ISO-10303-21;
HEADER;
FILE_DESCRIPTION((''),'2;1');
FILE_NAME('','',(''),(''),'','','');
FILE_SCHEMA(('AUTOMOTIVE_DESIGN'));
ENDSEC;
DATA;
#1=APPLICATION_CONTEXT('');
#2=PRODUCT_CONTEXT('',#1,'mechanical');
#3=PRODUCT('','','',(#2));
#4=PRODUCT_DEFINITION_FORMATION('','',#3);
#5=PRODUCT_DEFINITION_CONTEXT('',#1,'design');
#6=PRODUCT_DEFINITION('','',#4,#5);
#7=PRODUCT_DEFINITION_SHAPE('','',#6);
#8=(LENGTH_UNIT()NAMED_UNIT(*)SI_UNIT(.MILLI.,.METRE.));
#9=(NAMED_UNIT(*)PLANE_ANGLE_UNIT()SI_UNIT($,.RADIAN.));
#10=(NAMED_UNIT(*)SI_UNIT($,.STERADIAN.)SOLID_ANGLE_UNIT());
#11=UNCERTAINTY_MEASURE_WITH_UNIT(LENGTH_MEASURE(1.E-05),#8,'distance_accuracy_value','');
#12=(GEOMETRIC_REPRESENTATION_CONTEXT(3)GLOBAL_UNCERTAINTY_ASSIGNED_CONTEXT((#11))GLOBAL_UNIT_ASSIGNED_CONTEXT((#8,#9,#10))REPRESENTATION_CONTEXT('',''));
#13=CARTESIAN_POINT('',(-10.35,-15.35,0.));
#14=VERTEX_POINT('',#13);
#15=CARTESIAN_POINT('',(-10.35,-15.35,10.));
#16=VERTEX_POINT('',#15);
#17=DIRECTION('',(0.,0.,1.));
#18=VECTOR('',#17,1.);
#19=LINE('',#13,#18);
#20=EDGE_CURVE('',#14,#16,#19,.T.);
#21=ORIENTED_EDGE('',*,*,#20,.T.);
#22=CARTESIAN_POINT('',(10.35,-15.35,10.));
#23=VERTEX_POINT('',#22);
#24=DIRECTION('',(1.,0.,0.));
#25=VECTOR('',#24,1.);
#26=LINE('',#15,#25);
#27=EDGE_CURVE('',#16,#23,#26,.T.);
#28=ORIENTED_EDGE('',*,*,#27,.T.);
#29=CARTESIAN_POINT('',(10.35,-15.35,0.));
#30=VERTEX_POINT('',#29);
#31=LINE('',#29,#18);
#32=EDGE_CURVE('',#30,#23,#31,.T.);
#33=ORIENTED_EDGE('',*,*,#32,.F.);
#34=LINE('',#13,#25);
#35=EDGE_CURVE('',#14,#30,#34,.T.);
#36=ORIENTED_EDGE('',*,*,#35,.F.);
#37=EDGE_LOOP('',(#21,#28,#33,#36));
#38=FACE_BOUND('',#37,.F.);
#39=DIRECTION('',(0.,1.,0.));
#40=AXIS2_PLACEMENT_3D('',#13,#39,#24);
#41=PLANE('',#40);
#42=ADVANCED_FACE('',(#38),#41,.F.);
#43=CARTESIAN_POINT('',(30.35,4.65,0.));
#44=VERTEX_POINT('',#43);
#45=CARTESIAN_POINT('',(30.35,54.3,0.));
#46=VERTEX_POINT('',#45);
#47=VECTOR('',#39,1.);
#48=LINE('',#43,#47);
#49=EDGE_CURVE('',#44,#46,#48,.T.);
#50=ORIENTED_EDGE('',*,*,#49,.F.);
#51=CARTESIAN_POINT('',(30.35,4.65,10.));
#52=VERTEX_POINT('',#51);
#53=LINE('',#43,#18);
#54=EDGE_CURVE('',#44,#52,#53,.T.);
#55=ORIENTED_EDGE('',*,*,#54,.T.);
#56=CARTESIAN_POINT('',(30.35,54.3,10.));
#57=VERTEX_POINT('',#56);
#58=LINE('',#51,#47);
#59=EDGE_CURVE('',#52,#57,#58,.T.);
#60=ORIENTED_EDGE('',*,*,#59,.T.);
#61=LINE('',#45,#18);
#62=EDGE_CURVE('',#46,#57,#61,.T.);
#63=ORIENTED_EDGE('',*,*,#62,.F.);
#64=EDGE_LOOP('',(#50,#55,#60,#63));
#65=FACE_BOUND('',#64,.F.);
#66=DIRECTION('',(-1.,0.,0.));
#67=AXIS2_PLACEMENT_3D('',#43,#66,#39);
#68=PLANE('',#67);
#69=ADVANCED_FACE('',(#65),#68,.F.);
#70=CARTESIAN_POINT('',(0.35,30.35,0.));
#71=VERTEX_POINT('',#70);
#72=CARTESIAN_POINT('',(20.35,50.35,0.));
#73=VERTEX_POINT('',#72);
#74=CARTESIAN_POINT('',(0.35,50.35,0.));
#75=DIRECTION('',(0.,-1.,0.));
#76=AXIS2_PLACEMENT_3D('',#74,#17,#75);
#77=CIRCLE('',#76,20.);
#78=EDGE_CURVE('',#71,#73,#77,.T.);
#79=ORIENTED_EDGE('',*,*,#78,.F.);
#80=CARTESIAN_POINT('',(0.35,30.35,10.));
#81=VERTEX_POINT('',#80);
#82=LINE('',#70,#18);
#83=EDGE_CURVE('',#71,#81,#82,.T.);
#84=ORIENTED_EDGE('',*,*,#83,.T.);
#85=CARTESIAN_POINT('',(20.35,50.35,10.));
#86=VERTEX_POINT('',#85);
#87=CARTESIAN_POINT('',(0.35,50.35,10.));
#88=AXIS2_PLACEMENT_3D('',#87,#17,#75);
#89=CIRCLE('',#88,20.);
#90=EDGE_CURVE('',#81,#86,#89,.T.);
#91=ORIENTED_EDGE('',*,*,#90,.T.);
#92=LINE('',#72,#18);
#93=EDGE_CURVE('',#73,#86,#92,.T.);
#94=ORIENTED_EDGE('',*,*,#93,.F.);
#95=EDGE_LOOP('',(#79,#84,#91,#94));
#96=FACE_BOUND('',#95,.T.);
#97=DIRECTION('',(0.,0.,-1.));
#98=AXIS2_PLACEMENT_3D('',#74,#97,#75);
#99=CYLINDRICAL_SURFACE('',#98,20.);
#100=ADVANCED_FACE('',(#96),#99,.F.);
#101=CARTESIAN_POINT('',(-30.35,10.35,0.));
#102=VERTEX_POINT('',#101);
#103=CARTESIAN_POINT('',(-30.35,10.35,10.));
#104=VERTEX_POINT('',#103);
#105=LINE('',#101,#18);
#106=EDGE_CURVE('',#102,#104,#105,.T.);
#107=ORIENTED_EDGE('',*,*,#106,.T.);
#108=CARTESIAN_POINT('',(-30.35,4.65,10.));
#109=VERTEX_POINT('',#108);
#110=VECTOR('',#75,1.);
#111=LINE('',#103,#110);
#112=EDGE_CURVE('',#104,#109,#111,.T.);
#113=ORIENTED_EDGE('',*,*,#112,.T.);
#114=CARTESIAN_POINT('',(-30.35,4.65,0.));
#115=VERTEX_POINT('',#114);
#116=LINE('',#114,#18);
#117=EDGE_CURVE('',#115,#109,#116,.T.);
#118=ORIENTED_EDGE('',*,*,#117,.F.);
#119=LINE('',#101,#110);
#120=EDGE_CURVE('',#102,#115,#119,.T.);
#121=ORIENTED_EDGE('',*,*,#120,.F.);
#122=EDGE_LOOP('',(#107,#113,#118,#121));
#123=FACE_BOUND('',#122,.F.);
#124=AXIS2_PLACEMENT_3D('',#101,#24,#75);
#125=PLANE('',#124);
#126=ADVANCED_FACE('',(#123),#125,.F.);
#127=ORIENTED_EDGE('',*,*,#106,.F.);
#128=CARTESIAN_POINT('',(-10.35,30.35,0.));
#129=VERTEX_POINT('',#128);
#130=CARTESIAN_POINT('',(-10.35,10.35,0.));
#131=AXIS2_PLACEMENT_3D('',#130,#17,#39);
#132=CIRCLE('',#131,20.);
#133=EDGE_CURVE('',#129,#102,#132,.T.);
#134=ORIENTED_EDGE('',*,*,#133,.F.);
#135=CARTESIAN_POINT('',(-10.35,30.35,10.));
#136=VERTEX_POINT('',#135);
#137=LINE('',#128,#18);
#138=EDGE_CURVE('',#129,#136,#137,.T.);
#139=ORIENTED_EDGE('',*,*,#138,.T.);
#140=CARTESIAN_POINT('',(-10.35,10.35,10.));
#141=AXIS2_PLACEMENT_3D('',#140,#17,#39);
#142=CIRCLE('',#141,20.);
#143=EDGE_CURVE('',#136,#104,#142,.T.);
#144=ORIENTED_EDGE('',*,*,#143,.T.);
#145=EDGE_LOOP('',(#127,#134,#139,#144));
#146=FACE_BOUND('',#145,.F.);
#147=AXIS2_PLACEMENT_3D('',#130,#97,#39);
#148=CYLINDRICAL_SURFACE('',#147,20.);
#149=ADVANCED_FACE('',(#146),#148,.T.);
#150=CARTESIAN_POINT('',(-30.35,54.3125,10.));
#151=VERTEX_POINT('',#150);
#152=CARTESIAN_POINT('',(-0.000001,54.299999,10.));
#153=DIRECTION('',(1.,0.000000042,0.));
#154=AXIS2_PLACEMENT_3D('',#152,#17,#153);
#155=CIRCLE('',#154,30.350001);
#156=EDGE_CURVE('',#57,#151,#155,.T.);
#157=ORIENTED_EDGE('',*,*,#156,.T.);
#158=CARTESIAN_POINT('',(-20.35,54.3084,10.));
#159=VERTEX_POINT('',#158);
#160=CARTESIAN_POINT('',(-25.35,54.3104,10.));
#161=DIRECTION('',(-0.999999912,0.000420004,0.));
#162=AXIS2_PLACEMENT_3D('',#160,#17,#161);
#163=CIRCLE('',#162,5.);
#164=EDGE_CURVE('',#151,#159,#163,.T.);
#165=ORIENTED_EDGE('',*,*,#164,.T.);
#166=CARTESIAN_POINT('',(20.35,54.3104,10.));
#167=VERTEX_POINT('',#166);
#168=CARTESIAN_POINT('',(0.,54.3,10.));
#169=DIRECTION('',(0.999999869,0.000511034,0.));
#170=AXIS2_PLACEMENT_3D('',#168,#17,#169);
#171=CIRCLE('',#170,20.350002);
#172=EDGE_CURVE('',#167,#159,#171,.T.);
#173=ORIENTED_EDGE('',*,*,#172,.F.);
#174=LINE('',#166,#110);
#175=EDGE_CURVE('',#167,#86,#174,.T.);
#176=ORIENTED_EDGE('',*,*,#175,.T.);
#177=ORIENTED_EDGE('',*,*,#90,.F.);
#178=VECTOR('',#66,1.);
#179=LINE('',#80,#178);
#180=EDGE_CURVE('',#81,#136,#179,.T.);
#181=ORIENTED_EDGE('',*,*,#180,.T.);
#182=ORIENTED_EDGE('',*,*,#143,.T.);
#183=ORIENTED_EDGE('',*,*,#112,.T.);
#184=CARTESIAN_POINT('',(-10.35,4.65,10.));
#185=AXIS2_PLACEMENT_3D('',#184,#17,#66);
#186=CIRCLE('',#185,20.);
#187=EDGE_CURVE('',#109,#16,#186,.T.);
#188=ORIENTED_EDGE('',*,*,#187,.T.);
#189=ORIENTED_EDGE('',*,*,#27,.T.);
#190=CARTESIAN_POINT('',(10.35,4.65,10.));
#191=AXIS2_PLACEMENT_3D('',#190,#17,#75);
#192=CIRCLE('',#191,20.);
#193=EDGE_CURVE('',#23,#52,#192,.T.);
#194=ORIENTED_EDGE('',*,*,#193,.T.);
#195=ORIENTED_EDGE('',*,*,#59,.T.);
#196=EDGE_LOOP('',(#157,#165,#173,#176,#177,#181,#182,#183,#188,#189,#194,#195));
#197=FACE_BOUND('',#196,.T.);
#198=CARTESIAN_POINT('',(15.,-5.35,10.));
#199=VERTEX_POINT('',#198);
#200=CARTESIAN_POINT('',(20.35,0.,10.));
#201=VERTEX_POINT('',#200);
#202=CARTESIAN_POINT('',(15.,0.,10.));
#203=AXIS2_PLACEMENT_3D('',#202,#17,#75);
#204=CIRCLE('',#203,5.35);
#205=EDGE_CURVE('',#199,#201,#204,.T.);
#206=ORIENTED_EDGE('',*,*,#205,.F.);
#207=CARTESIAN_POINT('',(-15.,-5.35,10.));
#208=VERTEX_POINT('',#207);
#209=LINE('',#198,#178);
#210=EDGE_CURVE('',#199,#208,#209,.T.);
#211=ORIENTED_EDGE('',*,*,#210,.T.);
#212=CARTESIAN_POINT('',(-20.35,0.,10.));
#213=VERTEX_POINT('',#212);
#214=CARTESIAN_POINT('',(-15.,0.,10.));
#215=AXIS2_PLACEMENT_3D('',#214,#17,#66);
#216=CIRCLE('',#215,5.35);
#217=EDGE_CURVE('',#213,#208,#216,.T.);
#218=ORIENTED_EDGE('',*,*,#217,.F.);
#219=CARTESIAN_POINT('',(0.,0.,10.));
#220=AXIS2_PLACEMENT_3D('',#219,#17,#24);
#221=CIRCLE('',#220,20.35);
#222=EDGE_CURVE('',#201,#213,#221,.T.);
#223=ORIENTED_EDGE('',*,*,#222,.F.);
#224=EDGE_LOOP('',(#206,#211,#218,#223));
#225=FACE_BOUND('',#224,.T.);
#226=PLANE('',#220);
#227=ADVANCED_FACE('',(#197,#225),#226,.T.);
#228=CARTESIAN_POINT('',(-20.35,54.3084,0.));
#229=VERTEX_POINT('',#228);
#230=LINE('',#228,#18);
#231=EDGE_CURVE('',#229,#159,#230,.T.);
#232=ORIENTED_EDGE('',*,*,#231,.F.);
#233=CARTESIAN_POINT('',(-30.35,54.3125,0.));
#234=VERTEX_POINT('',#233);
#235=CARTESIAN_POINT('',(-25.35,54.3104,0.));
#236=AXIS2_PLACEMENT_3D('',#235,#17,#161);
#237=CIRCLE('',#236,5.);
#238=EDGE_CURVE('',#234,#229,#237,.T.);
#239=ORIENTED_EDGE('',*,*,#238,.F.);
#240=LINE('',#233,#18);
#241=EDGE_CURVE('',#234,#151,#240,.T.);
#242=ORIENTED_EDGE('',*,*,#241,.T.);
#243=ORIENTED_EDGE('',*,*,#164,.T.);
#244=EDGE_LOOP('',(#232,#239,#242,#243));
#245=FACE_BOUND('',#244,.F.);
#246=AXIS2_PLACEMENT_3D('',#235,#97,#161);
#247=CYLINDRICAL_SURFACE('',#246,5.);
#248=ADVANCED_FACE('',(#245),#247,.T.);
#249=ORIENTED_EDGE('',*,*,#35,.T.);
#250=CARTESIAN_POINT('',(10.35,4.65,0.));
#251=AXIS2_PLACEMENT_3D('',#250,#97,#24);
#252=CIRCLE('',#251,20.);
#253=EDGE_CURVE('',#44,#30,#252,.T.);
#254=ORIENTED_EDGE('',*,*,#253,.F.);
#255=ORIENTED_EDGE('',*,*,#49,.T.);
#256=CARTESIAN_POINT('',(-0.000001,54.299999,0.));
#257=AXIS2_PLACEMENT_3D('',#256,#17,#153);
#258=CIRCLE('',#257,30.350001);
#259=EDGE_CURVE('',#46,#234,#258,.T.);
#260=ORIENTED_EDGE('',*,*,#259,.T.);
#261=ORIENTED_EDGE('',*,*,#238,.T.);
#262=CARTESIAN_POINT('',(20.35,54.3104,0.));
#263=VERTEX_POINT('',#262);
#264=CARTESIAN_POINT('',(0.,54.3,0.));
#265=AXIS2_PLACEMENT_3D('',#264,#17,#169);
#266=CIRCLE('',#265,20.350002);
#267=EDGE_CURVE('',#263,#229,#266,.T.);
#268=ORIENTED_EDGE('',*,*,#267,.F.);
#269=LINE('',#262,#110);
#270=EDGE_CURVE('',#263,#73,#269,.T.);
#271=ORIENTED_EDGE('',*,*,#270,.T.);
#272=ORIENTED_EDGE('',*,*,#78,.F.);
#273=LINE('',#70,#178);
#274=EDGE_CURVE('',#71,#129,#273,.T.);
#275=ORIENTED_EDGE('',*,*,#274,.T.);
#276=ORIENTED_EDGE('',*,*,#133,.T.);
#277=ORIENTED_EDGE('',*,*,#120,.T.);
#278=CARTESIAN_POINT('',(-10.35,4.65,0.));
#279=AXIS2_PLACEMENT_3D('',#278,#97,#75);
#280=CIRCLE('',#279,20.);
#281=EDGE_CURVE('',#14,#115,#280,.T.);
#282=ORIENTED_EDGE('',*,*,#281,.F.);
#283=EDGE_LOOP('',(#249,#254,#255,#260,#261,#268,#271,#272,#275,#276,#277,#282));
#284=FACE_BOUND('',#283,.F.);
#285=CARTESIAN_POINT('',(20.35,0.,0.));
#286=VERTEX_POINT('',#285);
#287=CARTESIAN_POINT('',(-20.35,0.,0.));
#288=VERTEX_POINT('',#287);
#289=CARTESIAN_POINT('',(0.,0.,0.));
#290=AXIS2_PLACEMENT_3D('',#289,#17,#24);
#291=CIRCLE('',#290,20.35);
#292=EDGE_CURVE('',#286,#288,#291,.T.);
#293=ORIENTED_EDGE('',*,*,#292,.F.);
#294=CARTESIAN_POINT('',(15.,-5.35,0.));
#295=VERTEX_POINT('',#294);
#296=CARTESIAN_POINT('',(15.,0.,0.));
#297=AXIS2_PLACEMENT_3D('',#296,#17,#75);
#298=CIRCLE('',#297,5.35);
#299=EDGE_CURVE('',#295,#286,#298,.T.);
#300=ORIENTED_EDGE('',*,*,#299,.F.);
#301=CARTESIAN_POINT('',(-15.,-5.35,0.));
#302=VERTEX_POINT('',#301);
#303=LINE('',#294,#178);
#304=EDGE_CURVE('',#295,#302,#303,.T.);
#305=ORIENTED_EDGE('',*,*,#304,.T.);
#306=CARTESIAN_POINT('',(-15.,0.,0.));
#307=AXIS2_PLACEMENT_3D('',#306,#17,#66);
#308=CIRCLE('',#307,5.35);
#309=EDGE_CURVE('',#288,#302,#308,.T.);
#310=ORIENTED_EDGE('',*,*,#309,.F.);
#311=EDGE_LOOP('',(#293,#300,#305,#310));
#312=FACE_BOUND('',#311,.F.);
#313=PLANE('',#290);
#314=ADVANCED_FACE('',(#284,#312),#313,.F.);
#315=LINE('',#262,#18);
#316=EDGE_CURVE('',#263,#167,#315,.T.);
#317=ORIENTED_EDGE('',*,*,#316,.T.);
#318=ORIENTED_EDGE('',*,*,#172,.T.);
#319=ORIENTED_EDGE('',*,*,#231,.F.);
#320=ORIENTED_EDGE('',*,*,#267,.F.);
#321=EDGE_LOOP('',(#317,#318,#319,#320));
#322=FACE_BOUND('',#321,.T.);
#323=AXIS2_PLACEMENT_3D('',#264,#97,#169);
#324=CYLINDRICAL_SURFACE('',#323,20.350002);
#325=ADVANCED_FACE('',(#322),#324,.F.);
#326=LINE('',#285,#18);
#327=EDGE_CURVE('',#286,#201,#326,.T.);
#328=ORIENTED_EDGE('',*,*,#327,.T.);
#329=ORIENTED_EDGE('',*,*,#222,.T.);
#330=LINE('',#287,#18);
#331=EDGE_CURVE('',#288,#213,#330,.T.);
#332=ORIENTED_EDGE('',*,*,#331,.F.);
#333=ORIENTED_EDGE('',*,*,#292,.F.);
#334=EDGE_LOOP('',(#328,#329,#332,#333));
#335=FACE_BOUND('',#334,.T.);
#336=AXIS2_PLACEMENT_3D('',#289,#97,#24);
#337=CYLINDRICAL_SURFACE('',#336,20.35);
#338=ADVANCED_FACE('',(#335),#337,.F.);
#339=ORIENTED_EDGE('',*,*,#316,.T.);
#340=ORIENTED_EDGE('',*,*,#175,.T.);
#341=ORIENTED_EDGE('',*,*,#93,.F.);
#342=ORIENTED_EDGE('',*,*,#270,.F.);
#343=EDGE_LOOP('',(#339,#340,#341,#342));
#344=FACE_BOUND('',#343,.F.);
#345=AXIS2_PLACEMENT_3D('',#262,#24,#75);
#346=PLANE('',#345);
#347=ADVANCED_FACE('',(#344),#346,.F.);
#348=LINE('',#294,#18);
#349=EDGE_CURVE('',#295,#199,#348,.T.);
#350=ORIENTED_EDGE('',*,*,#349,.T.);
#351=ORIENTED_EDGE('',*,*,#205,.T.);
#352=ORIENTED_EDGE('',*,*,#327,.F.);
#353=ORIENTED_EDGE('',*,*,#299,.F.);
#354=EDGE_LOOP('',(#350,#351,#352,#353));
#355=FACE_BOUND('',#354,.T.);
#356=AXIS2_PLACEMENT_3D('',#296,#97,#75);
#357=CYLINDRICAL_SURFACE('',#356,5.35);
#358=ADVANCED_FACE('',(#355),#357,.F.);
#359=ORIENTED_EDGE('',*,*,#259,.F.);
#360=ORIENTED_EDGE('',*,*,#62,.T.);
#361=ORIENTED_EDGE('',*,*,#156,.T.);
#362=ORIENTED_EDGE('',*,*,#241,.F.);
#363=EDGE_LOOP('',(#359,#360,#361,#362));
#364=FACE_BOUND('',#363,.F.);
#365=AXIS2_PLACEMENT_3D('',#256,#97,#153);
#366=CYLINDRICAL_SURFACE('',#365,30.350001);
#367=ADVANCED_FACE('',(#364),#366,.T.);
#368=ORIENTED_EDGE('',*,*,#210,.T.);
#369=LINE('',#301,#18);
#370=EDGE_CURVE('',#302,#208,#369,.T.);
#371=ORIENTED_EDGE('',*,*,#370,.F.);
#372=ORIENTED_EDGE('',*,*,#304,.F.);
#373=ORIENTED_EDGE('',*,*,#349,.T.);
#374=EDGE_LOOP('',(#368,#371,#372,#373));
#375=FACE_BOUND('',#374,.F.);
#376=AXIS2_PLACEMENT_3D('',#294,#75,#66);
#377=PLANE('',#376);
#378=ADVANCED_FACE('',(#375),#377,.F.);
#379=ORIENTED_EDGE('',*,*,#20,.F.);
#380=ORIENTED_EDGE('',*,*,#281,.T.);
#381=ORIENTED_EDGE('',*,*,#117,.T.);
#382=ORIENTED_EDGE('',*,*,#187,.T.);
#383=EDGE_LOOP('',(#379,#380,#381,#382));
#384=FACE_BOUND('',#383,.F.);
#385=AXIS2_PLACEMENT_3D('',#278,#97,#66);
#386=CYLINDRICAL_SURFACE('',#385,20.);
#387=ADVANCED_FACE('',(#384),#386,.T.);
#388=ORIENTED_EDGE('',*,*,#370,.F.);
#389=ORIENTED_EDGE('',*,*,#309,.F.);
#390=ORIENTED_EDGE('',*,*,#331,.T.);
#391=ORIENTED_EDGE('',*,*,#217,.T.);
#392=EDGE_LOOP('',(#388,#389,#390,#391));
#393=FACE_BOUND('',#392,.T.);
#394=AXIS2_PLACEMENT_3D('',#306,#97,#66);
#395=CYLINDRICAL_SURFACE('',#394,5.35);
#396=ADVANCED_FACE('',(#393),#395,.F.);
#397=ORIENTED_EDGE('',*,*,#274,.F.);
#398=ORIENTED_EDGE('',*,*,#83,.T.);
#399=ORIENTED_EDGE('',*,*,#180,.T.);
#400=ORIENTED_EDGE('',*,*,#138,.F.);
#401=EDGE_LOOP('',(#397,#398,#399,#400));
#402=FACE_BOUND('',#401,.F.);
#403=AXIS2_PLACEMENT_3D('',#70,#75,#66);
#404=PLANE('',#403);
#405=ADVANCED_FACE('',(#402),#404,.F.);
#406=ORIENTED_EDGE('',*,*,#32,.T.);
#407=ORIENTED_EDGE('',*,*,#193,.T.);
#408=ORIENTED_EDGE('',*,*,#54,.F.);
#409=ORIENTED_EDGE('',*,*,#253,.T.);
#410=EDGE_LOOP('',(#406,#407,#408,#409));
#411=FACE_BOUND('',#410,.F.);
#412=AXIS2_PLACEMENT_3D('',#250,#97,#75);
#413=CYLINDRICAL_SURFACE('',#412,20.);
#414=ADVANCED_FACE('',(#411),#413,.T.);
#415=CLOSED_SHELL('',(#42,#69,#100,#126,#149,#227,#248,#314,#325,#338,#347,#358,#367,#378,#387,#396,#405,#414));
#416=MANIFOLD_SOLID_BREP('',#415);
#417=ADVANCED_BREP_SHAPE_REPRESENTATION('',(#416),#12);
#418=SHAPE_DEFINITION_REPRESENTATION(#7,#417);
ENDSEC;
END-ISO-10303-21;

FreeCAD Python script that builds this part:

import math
import FreeCAD as App
import Part
import Sketcher

doc = App.newDocument("Part")
params = doc.addObject("Spreadsheet::Sheet", "Params")
for row, (alias, value) in enumerate([
    ("sketch1_radius", "20 mm"),
    ("sketch1_radius2", "5 mm"),
    ("sketch1_width", "30 mm"),
    ("sketch1_height", "5.7 mm"),
    ("sketch1_height2", "49.65 mm"),
    ("pad1_length", "10 mm"),
], start=1):
    params.set(f"A{row}", alias)
    params.set(f"B{row}", "=" + value)
    params.setAlias(f"B{row}", alias)

body = doc.addObject("PartDesign::Body", "Body")

sketch1 = body.newObject("Sketcher::SketchObject", "Sketch")
sketch1.AttachmentSupport = (doc.getObject("XY_Plane"), [""])
sketch1.MapMode = "FlatFace"
sketch1.addGeometry(Part.ArcOfCircle(Part.Circle(App.Vector(-10.35, 4.65, 0), App.Vector(0, 0, 1), 20), math.radians(180), math.radians(270)), False)
sketch1.addGeometry(Part.LineSegment(App.Vector(-10.35, -15.35, 0), App.Vector(10.35, -15.35, 0)), False)
sketch1.addGeometry(Part.ArcOfCircle(Part.Circle(App.Vector(10.35, 4.65, 0), App.Vector(0, 0, 1), 20), math.radians(-90), math.radians(0)), False)
sketch1.addGeometry(Part.LineSegment(App.Vector(30.35, 4.65, 0), App.Vector(30.35, 54.3, 0)), False)
sketch1.addGeometry(Part.ArcOfCircle(Part.Circle(App.Vector(0, 54.3, 0), App.Vector(0, 0, 1), 30.35), math.radians(0), math.radians(179.976402)), False)
sketch1.addGeometry(Part.ArcOfCircle(Part.Circle(App.Vector(-25.35, 54.3104, 0), App.Vector(0, 0, 1), 5), math.radians(179.975936), math.radians(359.977082)), False)
sketch1.addGeometry(Part.ArcOfCircle(Part.Circle(App.Vector(0, 54.3, 0), App.Vector(0, 0, 1), 20.350003), math.radians(0.029281), math.radians(179.97635)), False)
sketch1.addGeometry(Part.LineSegment(App.Vector(20.35, 54.3104, 0), App.Vector(20.35, 50.35, 0)), False)
sketch1.addGeometry(Part.ArcOfCircle(Part.Circle(App.Vector(0.35, 50.35, 0), App.Vector(0, 0, 1), 20), math.radians(-90), math.radians(0)), False)
sketch1.addGeometry(Part.LineSegment(App.Vector(0.35, 30.35, 0), App.Vector(-10.35, 30.35, 0)), False)
sketch1.addGeometry(Part.ArcOfCircle(Part.Circle(App.Vector(-10.35, 10.35, 0), App.Vector(0, 0, 1), 20), math.radians(90), math.radians(180)), False)
sketch1.addGeometry(Part.LineSegment(App.Vector(-30.35, 10.35, 0), App.Vector(-30.35, 4.65, 0)), False)
sketch1.addGeometry(Part.ArcOfCircle(Part.Circle(App.Vector(0, 0, 0), App.Vector(0, 0, 1), 20.35), math.radians(0), math.radians(180)), False)
sketch1.addGeometry(Part.ArcOfCircle(Part.Circle(App.Vector(15, 0, 0), App.Vector(0, 0, 1), 5.35), math.radians(-90), math.radians(0)), False)
sketch1.addGeometry(Part.LineSegment(App.Vector(15, -5.35, 0), App.Vector(-15, -5.35, 0)), False)
sketch1.addGeometry(Part.ArcOfCircle(Part.Circle(App.Vector(-15, 0, 0), App.Vector(0, 0, 1), 5.35), math.radians(180), math.radians(270)), False)
sketch1.addConstraint(Sketcher.Constraint("Tangent", 0, 2, 1, 1))
sketch1.addConstraint(Sketcher.Constraint("Tangent", 1, 2, 2, 1))
sketch1.addConstraint(Sketcher.Constraint("Tangent", 2, 2, 3, 1))
sketch1.addConstraint(Sketcher.Constraint("Tangent", 3, 2, 4, 1))
sketch1.addConstraint(Sketcher.Constraint("Tangent", 4, 2, 5, 1))
sketch1.addConstraint(Sketcher.Constraint("Tangent", 5, 2, 6, 2))
sketch1.addConstraint(Sketcher.Constraint("Coincident", 6, 1, 7, 1))
sketch1.addConstraint(Sketcher.Constraint("Tangent", 7, 2, 8, 2))
sketch1.addConstraint(Sketcher.Constraint("Tangent", 8, 1, 9, 1))
sketch1.addConstraint(Sketcher.Constraint("Tangent", 9, 2, 10, 1))
sketch1.addConstraint(Sketcher.Constraint("Tangent", 10, 2, 11, 1))
sketch1.addConstraint(Sketcher.Constraint("Tangent", 11, 2, 0, 1))
sketch1.addConstraint(Sketcher.Constraint("Tangent", 12, 1, 13, 2))
sketch1.addConstraint(Sketcher.Constraint("Tangent", 13, 1, 14, 1))
sketch1.addConstraint(Sketcher.Constraint("Tangent", 14, 2, 15, 2))
sketch1.addConstraint(Sketcher.Constraint("Tangent", 15, 1, 12, 2))
sketch1.addConstraint(Sketcher.Constraint("Horizontal", 1))
sketch1.addConstraint(Sketcher.Constraint("Vertical", 3))
sketch1.addConstraint(Sketcher.Constraint("Vertical", 7))
sketch1.addConstraint(Sketcher.Constraint("Horizontal", 9))
sketch1.addConstraint(Sketcher.Constraint("Vertical", 11))
sketch1.addConstraint(Sketcher.Constraint("Horizontal", 14))
sketch1.addConstraint(Sketcher.Constraint("Coincident", 12, 3, -1, 1))
sketch1.addConstraint(Sketcher.Constraint("Coincident", 6, 3, 4, 3))
sketch1.addConstraint(Sketcher.Constraint("Equal", 0, 2))
sketch1.addConstraint(Sketcher.Constraint("Equal", 2, 8))
sketch1.addConstraint(Sketcher.Constraint("Equal", 8, 10))
sketch1.addConstraint(Sketcher.Constraint("Equal", 6, 12))
sketch1.addConstraint(Sketcher.Constraint("Equal", 13, 15))
sketch1.addConstraint(Sketcher.Constraint("PointOnObject", 4, 3, -2))
sketch1.addConstraint(Sketcher.Constraint("PointOnObject", 13, 3, -1))
sketch1.addConstraint(Sketcher.Constraint("Horizontal", 5, 3, 6, 1))
sketch1.addConstraint(Sketcher.Constraint("Vertical", 4, 2, 10, 2))
sketch1.addConstraint(Sketcher.Constraint("Radius", 0, 20.0))
sketch1.addConstraint(Sketcher.Constraint("Radius", 5, 5.0))
sketch1.addConstraint(Sketcher.Constraint("DistanceY", 13, 1, 2, 3, 10.0))
sketch1.addConstraint(Sketcher.Constraint("DistanceX", 14, 2, 14, 1, 30.0))
sketch1.addConstraint(Sketcher.Constraint("DistanceX", -1, 1, 8, 3, 0.35))
sketch1.addConstraint(Sketcher.Constraint("DistanceY", 11, 2, 11, 1, 5.7))
sketch1.addConstraint(Sketcher.Constraint("DistanceY", 3, 1, 3, 2, 49.65))
sketch1.addConstraint(Sketcher.Constraint("DistanceY", 7, 2, 7, 1, 3.9604))
sketch1.setExpression("Constraints[33]", "Params.sketch1_radius")
sketch1.setExpression("Constraints[34]", "Params.sketch1_radius2")
sketch1.setExpression("Constraints[36]", "Params.sketch1_width")
sketch1.setExpression("Constraints[38]", "Params.sketch1_height")
sketch1.setExpression("Constraints[39]", "Params.sketch1_height2")
pad1 = body.newObject("PartDesign::Pad", "Pad")
pad1.Profile = sketch1
pad1.setExpression("Length", "Params.pad1_length")

doc.recompute()
